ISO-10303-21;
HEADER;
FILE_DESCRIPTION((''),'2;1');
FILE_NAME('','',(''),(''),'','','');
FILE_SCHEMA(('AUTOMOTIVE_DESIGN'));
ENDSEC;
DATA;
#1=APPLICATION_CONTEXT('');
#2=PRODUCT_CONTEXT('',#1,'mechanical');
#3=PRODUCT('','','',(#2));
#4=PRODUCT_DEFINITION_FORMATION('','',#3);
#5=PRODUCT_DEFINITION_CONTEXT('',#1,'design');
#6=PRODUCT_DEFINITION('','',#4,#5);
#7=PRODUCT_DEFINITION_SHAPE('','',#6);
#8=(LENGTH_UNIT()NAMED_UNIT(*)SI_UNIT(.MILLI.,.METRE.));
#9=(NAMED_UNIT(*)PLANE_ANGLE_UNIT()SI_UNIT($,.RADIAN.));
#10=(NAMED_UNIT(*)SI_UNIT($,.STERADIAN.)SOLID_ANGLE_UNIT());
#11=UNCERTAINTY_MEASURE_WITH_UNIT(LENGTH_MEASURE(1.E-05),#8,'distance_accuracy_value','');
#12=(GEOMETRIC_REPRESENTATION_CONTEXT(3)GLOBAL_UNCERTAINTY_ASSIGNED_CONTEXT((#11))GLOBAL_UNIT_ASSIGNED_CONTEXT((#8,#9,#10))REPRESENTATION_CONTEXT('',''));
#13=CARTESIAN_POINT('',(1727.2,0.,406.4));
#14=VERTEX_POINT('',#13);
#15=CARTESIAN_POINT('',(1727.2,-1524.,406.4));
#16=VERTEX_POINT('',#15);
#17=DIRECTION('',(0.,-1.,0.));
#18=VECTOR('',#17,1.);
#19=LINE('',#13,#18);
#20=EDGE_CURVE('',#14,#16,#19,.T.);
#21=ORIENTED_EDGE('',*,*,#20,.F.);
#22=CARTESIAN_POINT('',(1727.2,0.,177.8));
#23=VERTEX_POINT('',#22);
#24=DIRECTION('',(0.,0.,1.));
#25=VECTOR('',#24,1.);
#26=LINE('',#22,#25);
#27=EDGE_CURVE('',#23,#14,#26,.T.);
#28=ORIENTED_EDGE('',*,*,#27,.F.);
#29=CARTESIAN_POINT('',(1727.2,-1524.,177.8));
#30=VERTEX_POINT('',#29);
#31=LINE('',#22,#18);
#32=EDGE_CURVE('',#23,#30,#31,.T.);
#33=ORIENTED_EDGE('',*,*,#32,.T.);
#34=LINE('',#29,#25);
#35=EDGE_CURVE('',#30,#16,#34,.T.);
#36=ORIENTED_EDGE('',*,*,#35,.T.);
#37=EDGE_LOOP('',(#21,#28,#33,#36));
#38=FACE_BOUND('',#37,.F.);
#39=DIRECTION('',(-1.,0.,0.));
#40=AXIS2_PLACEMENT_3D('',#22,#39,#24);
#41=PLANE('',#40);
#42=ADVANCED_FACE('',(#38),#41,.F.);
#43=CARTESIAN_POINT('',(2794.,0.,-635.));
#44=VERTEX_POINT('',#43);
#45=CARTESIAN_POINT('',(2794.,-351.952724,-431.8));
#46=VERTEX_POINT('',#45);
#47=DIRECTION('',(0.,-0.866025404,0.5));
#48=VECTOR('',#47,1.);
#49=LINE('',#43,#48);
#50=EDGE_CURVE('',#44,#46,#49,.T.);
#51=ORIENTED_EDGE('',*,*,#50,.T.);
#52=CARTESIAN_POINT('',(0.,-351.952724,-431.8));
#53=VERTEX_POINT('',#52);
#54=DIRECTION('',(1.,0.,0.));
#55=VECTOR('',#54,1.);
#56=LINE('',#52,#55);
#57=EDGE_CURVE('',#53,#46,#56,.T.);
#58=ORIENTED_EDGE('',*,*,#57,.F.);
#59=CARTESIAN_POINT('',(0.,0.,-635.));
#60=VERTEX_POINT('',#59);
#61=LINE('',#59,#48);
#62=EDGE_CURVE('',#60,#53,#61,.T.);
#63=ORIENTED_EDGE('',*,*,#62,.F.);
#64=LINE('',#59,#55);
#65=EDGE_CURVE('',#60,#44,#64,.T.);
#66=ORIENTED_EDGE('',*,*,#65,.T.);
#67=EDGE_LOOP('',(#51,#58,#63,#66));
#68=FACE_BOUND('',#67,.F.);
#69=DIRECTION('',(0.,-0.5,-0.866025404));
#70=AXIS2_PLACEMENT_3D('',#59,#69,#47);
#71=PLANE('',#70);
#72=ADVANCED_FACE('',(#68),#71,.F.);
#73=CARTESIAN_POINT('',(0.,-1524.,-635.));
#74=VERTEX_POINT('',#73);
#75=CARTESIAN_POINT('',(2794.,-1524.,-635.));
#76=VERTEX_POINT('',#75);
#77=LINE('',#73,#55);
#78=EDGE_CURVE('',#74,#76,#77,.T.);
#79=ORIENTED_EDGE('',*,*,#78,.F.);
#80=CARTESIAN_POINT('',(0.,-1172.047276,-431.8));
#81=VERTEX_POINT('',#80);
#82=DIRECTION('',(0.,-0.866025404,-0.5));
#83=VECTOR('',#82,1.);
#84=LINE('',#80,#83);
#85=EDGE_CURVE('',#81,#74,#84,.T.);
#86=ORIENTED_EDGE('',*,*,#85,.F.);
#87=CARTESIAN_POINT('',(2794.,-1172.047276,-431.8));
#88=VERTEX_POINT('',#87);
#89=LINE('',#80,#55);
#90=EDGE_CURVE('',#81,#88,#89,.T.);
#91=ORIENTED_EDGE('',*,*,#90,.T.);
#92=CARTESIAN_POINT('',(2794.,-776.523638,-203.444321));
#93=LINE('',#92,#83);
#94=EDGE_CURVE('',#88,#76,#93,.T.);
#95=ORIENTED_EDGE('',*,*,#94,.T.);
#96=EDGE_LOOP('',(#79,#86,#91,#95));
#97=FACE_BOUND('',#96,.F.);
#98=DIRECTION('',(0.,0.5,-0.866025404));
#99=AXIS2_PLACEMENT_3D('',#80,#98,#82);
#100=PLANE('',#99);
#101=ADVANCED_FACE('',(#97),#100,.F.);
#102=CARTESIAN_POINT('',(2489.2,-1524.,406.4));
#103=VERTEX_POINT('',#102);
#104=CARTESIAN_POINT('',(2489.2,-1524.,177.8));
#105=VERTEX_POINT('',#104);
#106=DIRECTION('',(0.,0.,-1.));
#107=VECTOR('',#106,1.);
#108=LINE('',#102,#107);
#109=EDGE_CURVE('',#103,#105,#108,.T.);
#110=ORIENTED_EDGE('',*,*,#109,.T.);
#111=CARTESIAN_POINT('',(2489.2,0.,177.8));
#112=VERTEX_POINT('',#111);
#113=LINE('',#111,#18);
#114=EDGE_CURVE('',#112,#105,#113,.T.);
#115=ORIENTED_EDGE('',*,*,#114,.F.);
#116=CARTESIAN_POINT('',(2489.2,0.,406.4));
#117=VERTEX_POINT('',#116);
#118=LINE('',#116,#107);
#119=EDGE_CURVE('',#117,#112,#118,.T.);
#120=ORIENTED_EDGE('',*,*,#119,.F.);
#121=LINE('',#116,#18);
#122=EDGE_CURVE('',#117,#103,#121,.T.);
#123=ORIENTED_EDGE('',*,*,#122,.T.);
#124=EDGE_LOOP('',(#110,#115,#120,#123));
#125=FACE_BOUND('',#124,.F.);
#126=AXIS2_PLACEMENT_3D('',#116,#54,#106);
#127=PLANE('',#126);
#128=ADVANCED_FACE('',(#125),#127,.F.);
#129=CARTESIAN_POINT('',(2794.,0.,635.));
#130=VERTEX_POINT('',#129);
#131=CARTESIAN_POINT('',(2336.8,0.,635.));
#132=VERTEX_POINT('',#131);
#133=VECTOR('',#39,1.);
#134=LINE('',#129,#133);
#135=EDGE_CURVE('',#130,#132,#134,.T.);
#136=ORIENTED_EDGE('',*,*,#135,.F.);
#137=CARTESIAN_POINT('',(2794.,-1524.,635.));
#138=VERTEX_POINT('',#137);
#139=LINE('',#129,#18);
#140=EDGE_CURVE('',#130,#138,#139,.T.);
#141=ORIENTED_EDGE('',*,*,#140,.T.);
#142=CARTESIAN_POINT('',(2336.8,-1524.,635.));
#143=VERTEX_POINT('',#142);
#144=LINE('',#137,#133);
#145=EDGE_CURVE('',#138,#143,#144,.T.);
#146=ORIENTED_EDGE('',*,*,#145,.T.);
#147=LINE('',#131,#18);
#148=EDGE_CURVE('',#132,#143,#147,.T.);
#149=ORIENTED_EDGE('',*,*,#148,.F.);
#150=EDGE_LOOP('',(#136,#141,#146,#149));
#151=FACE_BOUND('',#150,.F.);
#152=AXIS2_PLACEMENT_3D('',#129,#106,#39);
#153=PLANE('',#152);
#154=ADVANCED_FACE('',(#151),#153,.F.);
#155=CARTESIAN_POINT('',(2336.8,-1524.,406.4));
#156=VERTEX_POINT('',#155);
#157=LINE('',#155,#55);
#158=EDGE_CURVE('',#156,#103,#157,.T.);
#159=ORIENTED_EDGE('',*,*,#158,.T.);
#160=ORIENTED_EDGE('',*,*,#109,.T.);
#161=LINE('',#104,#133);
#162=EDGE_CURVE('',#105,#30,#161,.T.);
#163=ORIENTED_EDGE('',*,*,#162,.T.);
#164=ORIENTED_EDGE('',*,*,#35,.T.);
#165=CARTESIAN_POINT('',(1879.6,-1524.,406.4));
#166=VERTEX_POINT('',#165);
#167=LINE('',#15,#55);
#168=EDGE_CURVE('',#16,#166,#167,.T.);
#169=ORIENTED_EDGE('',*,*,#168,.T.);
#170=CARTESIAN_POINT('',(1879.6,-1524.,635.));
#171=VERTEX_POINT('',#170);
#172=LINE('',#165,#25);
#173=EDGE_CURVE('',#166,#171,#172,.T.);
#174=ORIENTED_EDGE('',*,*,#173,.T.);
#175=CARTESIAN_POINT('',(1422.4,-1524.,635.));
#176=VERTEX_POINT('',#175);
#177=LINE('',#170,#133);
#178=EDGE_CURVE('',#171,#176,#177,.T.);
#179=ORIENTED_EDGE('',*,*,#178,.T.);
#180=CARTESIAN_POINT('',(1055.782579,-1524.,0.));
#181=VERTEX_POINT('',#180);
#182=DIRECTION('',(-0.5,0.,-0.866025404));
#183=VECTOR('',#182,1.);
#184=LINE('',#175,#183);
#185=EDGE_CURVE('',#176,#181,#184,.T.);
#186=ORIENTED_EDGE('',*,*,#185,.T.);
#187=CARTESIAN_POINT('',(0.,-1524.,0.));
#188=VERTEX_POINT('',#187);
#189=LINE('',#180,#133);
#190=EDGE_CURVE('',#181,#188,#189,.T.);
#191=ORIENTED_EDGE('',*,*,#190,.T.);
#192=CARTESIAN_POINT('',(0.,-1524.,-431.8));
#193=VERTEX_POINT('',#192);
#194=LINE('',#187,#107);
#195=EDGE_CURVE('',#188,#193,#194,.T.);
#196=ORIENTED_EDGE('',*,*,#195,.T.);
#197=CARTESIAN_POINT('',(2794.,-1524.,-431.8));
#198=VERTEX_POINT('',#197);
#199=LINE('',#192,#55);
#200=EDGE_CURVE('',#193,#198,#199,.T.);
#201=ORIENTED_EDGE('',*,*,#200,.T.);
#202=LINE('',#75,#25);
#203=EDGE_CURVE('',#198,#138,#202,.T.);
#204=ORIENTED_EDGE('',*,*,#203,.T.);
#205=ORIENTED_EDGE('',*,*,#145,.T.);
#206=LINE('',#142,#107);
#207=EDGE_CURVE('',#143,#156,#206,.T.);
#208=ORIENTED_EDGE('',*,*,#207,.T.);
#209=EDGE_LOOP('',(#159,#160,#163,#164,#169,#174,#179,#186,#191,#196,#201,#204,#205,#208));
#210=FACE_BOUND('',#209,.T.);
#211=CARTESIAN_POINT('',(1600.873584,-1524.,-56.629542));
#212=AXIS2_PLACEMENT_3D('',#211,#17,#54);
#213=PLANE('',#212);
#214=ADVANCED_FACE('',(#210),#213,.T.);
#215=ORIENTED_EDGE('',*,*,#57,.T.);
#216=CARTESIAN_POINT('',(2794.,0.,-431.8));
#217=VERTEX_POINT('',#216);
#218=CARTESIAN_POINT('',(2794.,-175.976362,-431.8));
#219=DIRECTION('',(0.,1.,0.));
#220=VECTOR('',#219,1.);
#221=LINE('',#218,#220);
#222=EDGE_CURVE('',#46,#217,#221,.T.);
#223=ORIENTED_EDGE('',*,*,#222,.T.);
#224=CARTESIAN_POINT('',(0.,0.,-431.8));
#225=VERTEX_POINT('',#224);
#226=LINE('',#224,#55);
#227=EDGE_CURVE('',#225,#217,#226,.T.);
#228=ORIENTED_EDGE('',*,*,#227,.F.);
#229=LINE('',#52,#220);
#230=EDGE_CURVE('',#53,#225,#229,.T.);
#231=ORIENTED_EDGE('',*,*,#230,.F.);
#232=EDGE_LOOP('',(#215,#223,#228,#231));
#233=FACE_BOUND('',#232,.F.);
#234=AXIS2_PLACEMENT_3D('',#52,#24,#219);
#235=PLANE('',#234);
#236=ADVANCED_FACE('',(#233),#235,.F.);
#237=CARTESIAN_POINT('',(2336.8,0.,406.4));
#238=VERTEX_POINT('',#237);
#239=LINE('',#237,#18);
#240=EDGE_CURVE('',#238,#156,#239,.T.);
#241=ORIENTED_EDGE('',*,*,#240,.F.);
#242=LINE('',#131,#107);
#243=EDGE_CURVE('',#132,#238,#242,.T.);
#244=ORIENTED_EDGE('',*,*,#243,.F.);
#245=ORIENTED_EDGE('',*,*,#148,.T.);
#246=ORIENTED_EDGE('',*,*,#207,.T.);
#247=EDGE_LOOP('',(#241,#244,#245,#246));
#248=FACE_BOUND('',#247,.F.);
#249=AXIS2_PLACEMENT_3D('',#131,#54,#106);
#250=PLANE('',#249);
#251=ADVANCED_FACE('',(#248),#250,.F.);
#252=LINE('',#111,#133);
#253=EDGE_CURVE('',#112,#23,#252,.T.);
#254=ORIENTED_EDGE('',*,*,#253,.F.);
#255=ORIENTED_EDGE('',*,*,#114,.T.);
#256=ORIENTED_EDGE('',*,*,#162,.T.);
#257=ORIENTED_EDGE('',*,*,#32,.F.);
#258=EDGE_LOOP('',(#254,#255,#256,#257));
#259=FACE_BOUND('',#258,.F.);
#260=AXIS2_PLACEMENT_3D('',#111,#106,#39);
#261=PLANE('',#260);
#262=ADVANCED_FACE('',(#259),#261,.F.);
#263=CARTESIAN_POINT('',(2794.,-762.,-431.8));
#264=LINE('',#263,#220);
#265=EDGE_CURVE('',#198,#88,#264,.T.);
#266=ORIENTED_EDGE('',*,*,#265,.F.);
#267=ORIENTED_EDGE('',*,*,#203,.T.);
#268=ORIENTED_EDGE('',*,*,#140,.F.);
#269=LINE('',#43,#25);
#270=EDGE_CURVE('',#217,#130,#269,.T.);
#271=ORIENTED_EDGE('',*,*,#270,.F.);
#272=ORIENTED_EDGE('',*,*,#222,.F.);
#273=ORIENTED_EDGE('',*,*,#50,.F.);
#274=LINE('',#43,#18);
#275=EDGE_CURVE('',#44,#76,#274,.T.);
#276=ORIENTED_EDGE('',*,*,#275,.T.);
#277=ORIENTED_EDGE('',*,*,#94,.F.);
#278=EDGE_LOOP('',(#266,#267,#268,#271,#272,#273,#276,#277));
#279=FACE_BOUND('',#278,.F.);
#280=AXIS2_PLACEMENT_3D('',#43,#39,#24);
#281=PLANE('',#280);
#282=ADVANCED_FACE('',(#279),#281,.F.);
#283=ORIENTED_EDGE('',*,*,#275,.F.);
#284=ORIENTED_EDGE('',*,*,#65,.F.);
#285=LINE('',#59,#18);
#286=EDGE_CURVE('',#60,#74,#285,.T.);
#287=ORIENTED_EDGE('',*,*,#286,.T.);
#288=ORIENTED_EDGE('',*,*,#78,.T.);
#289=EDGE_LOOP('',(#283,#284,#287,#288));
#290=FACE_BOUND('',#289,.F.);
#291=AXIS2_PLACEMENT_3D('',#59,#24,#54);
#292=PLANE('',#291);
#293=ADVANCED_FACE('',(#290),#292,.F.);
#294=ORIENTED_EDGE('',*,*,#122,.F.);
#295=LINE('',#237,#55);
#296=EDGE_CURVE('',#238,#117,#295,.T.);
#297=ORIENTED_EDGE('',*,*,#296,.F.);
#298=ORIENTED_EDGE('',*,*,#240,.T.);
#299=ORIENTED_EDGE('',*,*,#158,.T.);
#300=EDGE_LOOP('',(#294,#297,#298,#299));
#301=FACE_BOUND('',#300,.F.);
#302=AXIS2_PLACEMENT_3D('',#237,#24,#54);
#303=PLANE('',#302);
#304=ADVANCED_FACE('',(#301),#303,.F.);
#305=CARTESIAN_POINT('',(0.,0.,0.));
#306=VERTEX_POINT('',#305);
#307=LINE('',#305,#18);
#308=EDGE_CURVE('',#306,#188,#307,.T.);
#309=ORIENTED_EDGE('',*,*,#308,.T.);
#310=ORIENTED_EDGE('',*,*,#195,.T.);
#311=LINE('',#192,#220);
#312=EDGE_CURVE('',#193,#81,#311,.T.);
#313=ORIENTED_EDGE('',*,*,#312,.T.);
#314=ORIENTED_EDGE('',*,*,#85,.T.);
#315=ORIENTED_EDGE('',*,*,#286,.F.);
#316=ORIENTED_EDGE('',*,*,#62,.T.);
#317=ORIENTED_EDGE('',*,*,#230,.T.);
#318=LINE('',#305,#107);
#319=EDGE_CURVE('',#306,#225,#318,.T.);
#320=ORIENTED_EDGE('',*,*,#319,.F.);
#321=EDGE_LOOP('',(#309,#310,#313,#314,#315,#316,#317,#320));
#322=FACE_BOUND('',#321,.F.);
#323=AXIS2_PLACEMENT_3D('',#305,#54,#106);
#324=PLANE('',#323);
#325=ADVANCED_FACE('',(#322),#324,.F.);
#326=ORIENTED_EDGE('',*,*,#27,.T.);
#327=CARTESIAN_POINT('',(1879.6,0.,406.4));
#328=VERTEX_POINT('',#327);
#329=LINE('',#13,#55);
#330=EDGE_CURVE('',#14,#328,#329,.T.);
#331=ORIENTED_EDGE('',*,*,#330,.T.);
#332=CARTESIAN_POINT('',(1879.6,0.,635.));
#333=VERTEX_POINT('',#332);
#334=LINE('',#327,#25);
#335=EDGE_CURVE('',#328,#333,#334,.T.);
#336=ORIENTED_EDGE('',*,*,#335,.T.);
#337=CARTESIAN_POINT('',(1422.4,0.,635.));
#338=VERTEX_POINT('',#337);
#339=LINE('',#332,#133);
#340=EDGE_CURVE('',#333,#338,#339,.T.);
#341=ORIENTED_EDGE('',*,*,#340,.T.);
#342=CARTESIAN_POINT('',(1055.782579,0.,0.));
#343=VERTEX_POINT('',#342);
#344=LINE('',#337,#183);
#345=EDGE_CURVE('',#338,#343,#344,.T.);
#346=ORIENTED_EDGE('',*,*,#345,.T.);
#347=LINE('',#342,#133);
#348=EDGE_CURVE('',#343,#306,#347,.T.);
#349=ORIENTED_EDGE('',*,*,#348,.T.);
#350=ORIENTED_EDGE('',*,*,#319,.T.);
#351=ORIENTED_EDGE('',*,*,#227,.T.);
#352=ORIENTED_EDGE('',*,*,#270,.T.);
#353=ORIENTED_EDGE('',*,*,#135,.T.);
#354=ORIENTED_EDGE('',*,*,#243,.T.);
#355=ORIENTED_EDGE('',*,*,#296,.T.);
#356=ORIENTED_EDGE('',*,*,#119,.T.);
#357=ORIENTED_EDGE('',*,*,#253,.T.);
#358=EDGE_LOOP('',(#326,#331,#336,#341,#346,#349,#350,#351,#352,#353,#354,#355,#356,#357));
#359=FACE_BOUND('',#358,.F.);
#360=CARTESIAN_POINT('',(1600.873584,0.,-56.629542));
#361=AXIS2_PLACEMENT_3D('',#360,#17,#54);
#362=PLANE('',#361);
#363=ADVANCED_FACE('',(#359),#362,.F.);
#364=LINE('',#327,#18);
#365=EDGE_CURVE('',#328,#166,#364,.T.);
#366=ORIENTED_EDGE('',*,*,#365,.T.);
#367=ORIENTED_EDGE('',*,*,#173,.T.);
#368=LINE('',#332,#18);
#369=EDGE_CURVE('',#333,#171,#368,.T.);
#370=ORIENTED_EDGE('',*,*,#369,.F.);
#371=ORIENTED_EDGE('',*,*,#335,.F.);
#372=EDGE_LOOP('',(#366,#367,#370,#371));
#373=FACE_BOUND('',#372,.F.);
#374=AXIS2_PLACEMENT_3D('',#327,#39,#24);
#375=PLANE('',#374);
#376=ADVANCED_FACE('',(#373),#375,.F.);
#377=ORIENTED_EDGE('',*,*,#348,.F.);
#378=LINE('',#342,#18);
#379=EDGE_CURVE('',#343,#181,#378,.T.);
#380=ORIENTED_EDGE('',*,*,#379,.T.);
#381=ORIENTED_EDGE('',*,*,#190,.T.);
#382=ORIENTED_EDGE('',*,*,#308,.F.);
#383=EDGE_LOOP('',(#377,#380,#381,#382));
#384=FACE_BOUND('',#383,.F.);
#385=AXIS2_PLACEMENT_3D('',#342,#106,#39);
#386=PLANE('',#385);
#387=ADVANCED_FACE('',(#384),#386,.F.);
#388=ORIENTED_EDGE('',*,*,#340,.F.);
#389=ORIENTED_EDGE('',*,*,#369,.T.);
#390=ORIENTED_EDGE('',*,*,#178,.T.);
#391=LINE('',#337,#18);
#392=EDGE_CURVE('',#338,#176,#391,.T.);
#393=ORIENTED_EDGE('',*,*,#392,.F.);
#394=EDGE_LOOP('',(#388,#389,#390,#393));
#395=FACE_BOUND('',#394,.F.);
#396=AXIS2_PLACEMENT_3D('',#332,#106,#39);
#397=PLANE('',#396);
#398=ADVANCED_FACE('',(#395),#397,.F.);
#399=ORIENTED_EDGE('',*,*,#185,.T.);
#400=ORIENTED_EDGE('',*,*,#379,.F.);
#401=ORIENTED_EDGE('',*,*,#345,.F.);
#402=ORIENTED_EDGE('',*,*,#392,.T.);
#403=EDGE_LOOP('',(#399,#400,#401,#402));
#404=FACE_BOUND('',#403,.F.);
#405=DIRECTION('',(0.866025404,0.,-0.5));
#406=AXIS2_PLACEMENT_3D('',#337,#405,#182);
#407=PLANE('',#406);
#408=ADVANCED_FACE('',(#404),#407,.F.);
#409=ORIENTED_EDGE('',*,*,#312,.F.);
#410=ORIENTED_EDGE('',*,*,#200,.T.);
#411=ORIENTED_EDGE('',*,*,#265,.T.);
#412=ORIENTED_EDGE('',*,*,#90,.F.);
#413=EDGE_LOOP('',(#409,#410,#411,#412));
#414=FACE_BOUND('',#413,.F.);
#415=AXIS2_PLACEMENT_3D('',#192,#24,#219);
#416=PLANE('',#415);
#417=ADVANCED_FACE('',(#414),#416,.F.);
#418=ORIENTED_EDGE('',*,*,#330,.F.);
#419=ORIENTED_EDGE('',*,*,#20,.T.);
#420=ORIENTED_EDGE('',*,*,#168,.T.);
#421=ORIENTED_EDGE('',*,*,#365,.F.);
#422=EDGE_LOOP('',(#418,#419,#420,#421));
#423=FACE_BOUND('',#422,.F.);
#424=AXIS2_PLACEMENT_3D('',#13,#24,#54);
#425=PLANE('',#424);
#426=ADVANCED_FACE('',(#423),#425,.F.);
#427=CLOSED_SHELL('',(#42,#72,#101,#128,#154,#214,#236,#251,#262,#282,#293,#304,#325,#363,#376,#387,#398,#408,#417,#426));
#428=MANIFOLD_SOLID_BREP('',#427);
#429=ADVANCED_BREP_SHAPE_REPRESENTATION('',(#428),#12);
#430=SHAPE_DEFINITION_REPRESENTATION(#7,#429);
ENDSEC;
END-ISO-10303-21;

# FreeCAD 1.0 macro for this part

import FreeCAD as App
import Part
import Sketcher
Q = App.Units.Quantity

doc = App.newDocument("Part")
body = doc.addObject("PartDesign::Body", "Body")

# Sketch on XZ plane
sketch1 = body.newObject("Sketcher::SketchObject", "Sketch")
sketch1.AttachmentSupport = (doc.getObject("XZ_Plane"), [""])
sketch1.MapMode = "FlatFace"
sketch1.addGeometry(Part.LineSegment(App.Vector(1056, 0, 0), App.Vector(0, 0, 0)), False)
sketch1.addGeometry(Part.LineSegment(App.Vector(0, 0, 0), App.Vector(0, -635, 0)), False)
sketch1.addGeometry(Part.LineSegment(App.Vector(0, -635, 0), App.Vector(2794, -635, 0)), False)
sketch1.addGeometry(Part.LineSegment(App.Vector(2794, -635, 0), App.Vector(2794, 635, 0)), False)
sketch1.addGeometry(Part.LineSegment(App.Vector(2794, 635, 0), App.Vector(2337, 635, 0)), False)
sketch1.addGeometry(Part.LineSegment(App.Vector(2337, 635, 0), App.Vector(2337, 406, 0)), False)
sketch1.addGeometry(Part.LineSegment(App.Vector(2337, 406, 0), App.Vector(2489, 406, 0)), False)
sketch1.addGeometry(Part.LineSegment(App.Vector(2489, 406, 0), App.Vector(2489, 178, 0)), False)
sketch1.addGeometry(Part.LineSegment(App.Vector(2489, 178, 0), App.Vector(1727, 178, 0)), False)
sketch1.addGeometry(Part.LineSegment(App.Vector(1727, 178, 0), App.Vector(1727, 406, 0)), False)
sketch1.addGeometry(Part.LineSegment(App.Vector(1727, 406, 0), App.Vector(1880, 406, 0)), False)
sketch1.addGeometry(Part.LineSegment(App.Vector(1880, 406, 0), App.Vector(1880, 635, 0)), False)
sketch1.addGeometry(Part.LineSegment(App.Vector(1880, 635, 0), App.Vector(1422, 635, 0)), False)
sketch1.addGeometry(Part.LineSegment(App.Vector(1422, 635, 0), App.Vector(1056, 0, 0)), False)
sketch1.addConstraint(Sketcher.Constraint("Coincident", 0, 2, 1, 1))
sketch1.addConstraint(Sketcher.Constraint("Coincident", 1, 2, 2, 1))
sketch1.addConstraint(Sketcher.Constraint("Coincident", 2, 2, 3, 1))
sketch1.addConstraint(Sketcher.Constraint("Coincident", 3, 2, 4, 1))
sketch1.addConstraint(Sketcher.Constraint("Coincident", 4, 2, 5, 1))
sketch1.addConstraint(Sketcher.Constraint("Coincident", 5, 2, 6, 1))
sketch1.addConstraint(Sketcher.Constraint("Coincident", 6, 2, 7, 1))
sketch1.addConstraint(Sketcher.Constraint("Coincident", 7, 2, 8, 1))
sketch1.addConstraint(Sketcher.Constraint("Coincident", 8, 2, 9, 1))
sketch1.addConstraint(Sketcher.Constraint("Coincident", 9, 2, 10, 1))
sketch1.addConstraint(Sketcher.Constraint("Coincident", 10, 2, 11, 1))
sketch1.addConstraint(Sketcher.Constraint("Coincident", 11, 2, 12, 1))
sketch1.addConstraint(Sketcher.Constraint("Coincident", 12, 2, 13, 1))
sketch1.addConstraint(Sketcher.Constraint("Coincident", 13, 2, 0, 1))
sketch1.addConstraint(Sketcher.Constraint("Horizontal", 0))
sketch1.addConstraint(Sketcher.Constraint("Vertical", 1))
sketch1.addConstraint(Sketcher.Constraint("Horizontal", 2))
sketch1.addConstraint(Sketcher.Constraint("Vertical", 3))
sketch1.addConstraint(Sketcher.Constraint("Horizontal", 4))
sketch1.addConstraint(Sketcher.Constraint("Vertical", 5))
sketch1.addConstraint(Sketcher.Constraint("Horizontal", 6))
sketch1.addConstraint(Sketcher.Constraint("Vertical", 7))
sketch1.addConstraint(Sketcher.Constraint("Horizontal", 8))
sketch1.addConstraint(Sketcher.Constraint("Vertical", 9))
sketch1.addConstraint(Sketcher.Constraint("Horizontal", 10))
sketch1.addConstraint(Sketcher.Constraint("Vertical", 11))
sketch1.addConstraint(Sketcher.Constraint("Horizontal", 12))
sketch1.addConstraint(Sketcher.Constraint("Coincident", 0, 2, -1, 1))
sketch1.addConstraint(Sketcher.Constraint("Horizontal", 6, 2, 9, 2))
sketch1.addConstraint(Sketcher.Constraint("Horizontal", 4, 2, 11, 2))
sketch1.addConstraint(Sketcher.Constraint("Equal", 6, 10))
sketch1.addConstraint(Sketcher.Constraint("Equal", 4, 12))
sketch1.addConstraint(Sketcher.Constraint("Equal", 5, 7))
sketch1.addConstraint(Sketcher.Constraint("DistanceX", 2, 1, 2, 2, Q("110 in")))
sketch1.addConstraint(Sketcher.Constraint("DistanceX", 4, 2, 4, 1, Q("18 in")))
sketch1.addConstraint(Sketcher.Constraint("DistanceX", 6, 1, 6, 2, Q("6 in")))
sketch1.addConstraint(Sketcher.Constraint("DistanceX", 8, 2, 8, 1, Q("30 in")))
sketch1.addConstraint(Sketcher.Constraint("DistanceY", 1, 2, 1, 1, Q("25 in")))
sketch1.addConstraint(Sketcher.Constraint("DistanceY", 3, 1, 3, 2, Q("50 in")))
sketch1.addConstraint(Sketcher.Constraint("DistanceY", 5, 2, 5, 1, Q("9 in")))
sketch1.addConstraint(Sketcher.Constraint("Angle", 13, Q("-120 deg")))
pad1 = body.newObject("PartDesign::Pad", "Pad")
pad1.Profile = sketch1
pad1.Length = Q("60 in")

# Sketch on YZ plane
sketch2 = body.newObject("Sketcher::SketchObject", "Sketch001")
sketch2.AttachmentSupport = (doc.getObject("YZ_Plane"), [""])
sketch2.MapMode = "FlatFace"
sketch2.addGeometry(Part.LineSegment(App.Vector(0, -432, 0), App.Vector(0, -635, 0)), False)
sketch2.addGeometry(Part.LineSegment(App.Vector(0, -635, 0), App.Vector(-352, -432, 0)), False)
sketch2.addGeometry(Part.LineSegment(App.Vector(-352, -432, 0), App.Vector(0, -432, 0)), False)
sketch2.addGeometry(Part.LineSegment(App.Vector(-1172, -432, 0), App.Vector(-1524, -635, 0)), False)
sketch2.addGeometry(Part.LineSegment(App.Vector(-1524, -635, 0), App.Vector(-1524, -432, 0)), False)
sketch2.addGeometry(Part.LineSegment(App.Vector(-1524, -432, 0), App.Vector(-1172, -432, 0)), False)
sketch2.addConstraint(Sketcher.Constraint("Coincident", 0, 2, 1, 1))
sketch2.addConstraint(Sketcher.Constraint("Coincident", 1, 2, 2, 1))
sketch2.addConstraint(Sketcher.Constraint("Coincident", 2, 2, 0, 1))
sketch2.addConstraint(Sketcher.Constraint("Coincident", 3, 2, 4, 1))
sketch2.addConstraint(Sketcher.Constraint("Coincident", 4, 2, 5, 1))
sketch2.addConstraint(Sketcher.Constraint("Coincident", 5, 2, 3, 1))
sketch2.addConstraint(Sketcher.Constraint("Vertical", 0))
sketch2.addConstraint(Sketcher.Constraint("Horizontal", 2))
sketch2.addConstraint(Sketcher.Constraint("Vertical", 4))
sketch2.addConstraint(Sketcher.Constraint("Horizontal", 5))
sketch2.addConstraint(Sketcher.Constraint("PointOnObject", 0, 2, -2))
sketch2.addConstraint(Sketcher.Constraint("Horizontal", 0, 2, 3, 2))
sketch2.addConstraint(Sketcher.Constraint("Horizontal", 2, 2, 4, 2))
sketch2.addConstraint(Sketcher.Constraint("Equal", 2, 5))
sketch2.addConstraint(Sketcher.Constraint("DistanceY", 0, 2, 0, 1, Q("8 in")))
sketch2.addConstraint(Sketcher.Constraint("Distance", 1, Q("16 in")))
sketch2.addConstraint(Sketcher.Constraint("DistanceY", 0, 2, -1, 1, Q("25 in")))
sketch2.addConstraint(Sketcher.Constraint("DistanceX", 3, 2, -1, 1, Q("60 in")))
pocket1 = body.newObject("PartDesign::Pocket", "Pocket")
pocket1.Profile = sketch2
pocket1.Type = "ThroughAll"
pocket1.Reversed = True

doc.recompute()
